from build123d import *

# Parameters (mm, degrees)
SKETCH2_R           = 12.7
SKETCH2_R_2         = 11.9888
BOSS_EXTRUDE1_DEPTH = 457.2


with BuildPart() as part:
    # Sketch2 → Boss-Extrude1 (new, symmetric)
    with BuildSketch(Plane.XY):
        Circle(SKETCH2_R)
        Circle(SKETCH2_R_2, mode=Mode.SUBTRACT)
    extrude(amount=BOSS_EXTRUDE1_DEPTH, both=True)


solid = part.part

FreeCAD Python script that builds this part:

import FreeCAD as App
import Part
import Sketcher
from FreeCAD import Vector
Q = App.Units.Quantity

doc = App.newDocument("Part")
body = doc.addObject("PartDesign::Body", "Body")

# Sketch on XY plane
sketch1 = doc.addObject("Sketcher::SketchObject", "Sketch")
body.addObject(sketch1)
sketch1.AttachmentSupport = (doc.XY_Plane, [""])
sketch1.MapMode = "FlatFace"
sketch1.addGeometry([
    Part.Circle(Vector(0, 0, 0), Vector(0, 0, 1), 12.7),
    Part.Circle(Vector(0, 0, 0), Vector(0, 0, 1), 11.9888),
], False)
sketch1.addConstraint([
    Sketcher.Constraint("Coincident", 0, 3, -1, 1),
    Sketcher.Constraint("Coincident", 1, 3, -1, 1),
    Sketcher.Constraint("Diameter", 0, Q("1 in")),
    Sketcher.Constraint("Diameter", 1, Q("0.944 in")),
])
pad1 = doc.addObject("PartDesign::Pad", "Pad")
body.addObject(pad1)
pad1.Profile = sketch1
pad1.Length = Q("36 in")
pad1.Midplane = True

doc.recompute()
